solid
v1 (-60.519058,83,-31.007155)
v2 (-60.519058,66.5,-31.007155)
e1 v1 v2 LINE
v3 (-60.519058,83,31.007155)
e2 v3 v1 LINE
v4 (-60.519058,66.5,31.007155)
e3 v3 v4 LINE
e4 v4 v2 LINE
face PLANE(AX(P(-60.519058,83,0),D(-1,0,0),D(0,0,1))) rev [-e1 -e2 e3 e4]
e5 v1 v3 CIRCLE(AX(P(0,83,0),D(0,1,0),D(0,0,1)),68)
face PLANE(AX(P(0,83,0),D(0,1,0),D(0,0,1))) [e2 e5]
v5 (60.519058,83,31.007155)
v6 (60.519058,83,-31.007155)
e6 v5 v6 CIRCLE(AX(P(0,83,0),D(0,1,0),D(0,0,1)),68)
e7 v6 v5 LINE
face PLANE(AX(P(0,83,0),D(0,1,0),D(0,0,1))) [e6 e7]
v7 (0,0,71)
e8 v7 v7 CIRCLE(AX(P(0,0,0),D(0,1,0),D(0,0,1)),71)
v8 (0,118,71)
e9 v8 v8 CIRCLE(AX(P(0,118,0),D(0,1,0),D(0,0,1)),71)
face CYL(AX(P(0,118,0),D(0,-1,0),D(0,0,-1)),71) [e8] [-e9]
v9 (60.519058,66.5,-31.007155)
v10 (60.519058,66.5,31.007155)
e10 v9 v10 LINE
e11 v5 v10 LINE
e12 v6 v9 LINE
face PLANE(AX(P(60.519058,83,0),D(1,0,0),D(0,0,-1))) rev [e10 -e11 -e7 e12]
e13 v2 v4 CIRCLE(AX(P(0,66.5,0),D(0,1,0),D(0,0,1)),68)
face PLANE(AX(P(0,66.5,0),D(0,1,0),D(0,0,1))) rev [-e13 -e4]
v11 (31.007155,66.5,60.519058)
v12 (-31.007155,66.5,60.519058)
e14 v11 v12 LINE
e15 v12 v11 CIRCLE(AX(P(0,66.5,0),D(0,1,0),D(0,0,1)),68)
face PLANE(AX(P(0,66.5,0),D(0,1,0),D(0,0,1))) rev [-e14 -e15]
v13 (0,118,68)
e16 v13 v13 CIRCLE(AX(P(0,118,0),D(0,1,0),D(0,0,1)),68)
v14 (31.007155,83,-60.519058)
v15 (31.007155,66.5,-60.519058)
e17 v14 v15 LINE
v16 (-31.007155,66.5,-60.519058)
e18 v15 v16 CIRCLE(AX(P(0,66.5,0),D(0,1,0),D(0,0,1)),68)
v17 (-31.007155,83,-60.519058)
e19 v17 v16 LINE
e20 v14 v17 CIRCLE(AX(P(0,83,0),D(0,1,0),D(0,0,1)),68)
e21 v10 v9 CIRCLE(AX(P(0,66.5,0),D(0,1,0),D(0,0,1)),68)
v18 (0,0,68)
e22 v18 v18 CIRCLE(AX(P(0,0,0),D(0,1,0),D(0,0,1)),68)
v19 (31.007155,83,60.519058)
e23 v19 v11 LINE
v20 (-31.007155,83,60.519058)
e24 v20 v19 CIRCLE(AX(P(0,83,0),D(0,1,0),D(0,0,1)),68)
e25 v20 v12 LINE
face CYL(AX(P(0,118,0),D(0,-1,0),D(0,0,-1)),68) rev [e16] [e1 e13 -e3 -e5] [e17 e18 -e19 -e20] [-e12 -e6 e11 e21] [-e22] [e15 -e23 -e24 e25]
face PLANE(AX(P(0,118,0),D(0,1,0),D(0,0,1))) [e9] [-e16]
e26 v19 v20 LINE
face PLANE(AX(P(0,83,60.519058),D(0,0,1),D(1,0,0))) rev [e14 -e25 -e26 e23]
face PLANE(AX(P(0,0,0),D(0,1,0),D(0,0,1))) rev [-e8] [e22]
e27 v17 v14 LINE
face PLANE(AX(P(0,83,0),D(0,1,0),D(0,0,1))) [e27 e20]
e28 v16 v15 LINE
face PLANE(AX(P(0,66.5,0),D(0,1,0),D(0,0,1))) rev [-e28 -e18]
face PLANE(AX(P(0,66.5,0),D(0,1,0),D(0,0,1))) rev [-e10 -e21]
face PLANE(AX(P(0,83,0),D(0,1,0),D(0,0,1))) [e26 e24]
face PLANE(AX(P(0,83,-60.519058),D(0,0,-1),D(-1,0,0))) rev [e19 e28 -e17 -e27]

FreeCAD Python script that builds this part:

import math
import FreeCAD as App
import Part
import Sketcher
from FreeCAD import Vector
Q = App.Units.Quantity

doc = App.newDocument("Part")
body = doc.addObject("PartDesign::Body", "Body")

# Sketch on XZ plane
sketch1 = body.newObject("Sketcher::SketchObject", "Sketch")
sketch1.AttachmentSupport = (doc.getObject("XZ_Plane"), [""])
sketch1.MapMode = "FlatFace"
sketch1.addGeometry(Part.Circle(Vector(0, 0, 0), Vector(0, 0, 1), 71), False)
sketch1.addGeometry(Part.Circle(Vector(0, 0, 0), Vector(0, 0, 1), 68), False)
sketch1.addConstraint(Sketcher.Constraint("Coincident", 0, 3, -1, 1))
sketch1.addConstraint(Sketcher.Constraint("Coincident", 1, 3, -1, 1))
sketch1.addConstraint(Sketcher.Constraint("Diameter", 0, Q("142 mm")))
sketch1.addConstraint(Sketcher.Constraint("Diameter", 1, Q("136 mm")))
pad1 = body.newObject("PartDesign::Pad", "Pad")
pad1.Profile = sketch1
pad1.Length = 118
pad1.Reversed = True

# Sketch on XZ plane
sketch2 = body.newObject("Sketcher::SketchObject", "Sketch001")
sketch2.AttachmentSupport = (doc.getObject("XZ_Plane"), [""])
sketch2.MapMode = "FlatFace"
sketch2.AttachmentOffset = App.Placement(Vector(0, 0, -66.5), App.Rotation())
sketch2.addGeometry(Part.ArcOfCircle(Part.Circle(Vector(0, 0, 0), Vector(0, 0, 1), 68), math.radians(63), math.radians(117)), False)
sketch2.addGeometry(Part.LineSegment(Vector(31, 61, 0), Vector(-31, 61, 0)), False)
sketch2.addGeometry(Part.ArcOfCircle(Part.Circle(Vector(0, 0, 0), Vector(0, 0, 1), 68), math.radians(-117), math.radians(-63)), False)
sketch2.addGeometry(Part.LineSegment(Vector(-31, -61, 0), Vector(31, -61, 0)), False)
sketch2.addGeometry(Part.LineSegment(Vector(-61, 31, 0), Vector(-61, -31, 0)), False)
sketch2.addGeometry(Part.ArcOfCircle(Part.Circle(Vector(0, 0, 0), Vector(0, 0, 1), 68), math.radians(153), math.radians(207)), False)
sketch2.addGeometry(Part.ArcOfCircle(Part.Circle(Vector(0, 0, 0), Vector(0, 0, 1), 68), math.radians(0), math.radians(27)), False)
sketch2.addGeometry(Part.ArcOfCircle(Part.Circle(Vector(0, 0, 0), Vector(0, 0, 1), 68), math.radians(-27), math.radians(0)), False)
sketch2.addGeometry(Part.LineSegment(Vector(61, -31, 0), Vector(61, 31, 0)), False)
sketch2.addConstraint(Sketcher.Constraint("Coincident", 0, 1, 1, 1))
sketch2.addConstraint(Sketcher.Constraint("Coincident", 1, 2, 0, 2))
sketch2.addConstraint(Sketcher.Constraint("Coincident", 2, 1, 3, 1))
sketch2.addConstraint(Sketcher.Constraint("Coincident", 3, 2, 2, 2))
sketch2.addConstraint(Sketcher.Constraint("Coincident", 4, 1, 5, 1))
sketch2.addConstraint(Sketcher.Constraint("Coincident", 5, 2, 4, 2))
sketch2.addConstraint(Sketcher.Constraint("Tangent", 6, 1, 7, 2))
sketch2.addConstraint(Sketcher.Constraint("Coincident", 7, 1, 8, 1))
sketch2.addConstraint(Sketcher.Constraint("Coincident", 8, 2, 6, 2))
sketch2.addConstraint(Sketcher.Constraint("Horizontal", 1))
sketch2.addConstraint(Sketcher.Constraint("Horizontal", 3))
sketch2.addConstraint(Sketcher.Constraint("Vertical", 4))
sketch2.addConstraint(Sketcher.Constraint("Vertical", 8))
sketch2.addConstraint(Sketcher.Constraint("Coincident", 0, 3, -1, 1))
sketch2.addConstraint(Sketcher.Constraint("Coincident", 2, 3, -1, 1))
sketch2.addConstraint(Sketcher.Constraint("Coincident", 5, 3, -1, 1))
sketch2.addConstraint(Sketcher.Constraint("Coincident", 6, 3, -1, 1))
sketch2.addConstraint(Sketcher.Constraint("Equal", 0, 2))
sketch2.addConstraint(Sketcher.Constraint("Equal", 2, 5))
sketch2.addConstraint(Sketcher.Constraint("Equal", 5, 6))
sketch2.addConstraint(Sketcher.Constraint("Equal", 6, 7))
sketch2.addConstraint(Sketcher.Constraint("PointOnObject", 6, 1, -1))
sketch2.addConstraint(Sketcher.Constraint("Horizontal", 5, 2, 7, 1))
sketch2.addConstraint(Sketcher.Constraint("Vertical", 1, 2, 2, 1))
sketch2.addConstraint(Sketcher.Constraint("Equal", 3, 4))
sketch2.addConstraint(Sketcher.Constraint("Radius", 0, Q("68 mm")))
sketch2.addConstraint(Sketcher.Constraint("DistanceX", 1, 2, 1, 1, Q("62.01431 mm")))
pad2 = body.newObject("PartDesign::Pad", "Pad001")
pad2.Profile = sketch2
pad2.Length = 16.5
pad2.Reversed = True

doc.recompute()
